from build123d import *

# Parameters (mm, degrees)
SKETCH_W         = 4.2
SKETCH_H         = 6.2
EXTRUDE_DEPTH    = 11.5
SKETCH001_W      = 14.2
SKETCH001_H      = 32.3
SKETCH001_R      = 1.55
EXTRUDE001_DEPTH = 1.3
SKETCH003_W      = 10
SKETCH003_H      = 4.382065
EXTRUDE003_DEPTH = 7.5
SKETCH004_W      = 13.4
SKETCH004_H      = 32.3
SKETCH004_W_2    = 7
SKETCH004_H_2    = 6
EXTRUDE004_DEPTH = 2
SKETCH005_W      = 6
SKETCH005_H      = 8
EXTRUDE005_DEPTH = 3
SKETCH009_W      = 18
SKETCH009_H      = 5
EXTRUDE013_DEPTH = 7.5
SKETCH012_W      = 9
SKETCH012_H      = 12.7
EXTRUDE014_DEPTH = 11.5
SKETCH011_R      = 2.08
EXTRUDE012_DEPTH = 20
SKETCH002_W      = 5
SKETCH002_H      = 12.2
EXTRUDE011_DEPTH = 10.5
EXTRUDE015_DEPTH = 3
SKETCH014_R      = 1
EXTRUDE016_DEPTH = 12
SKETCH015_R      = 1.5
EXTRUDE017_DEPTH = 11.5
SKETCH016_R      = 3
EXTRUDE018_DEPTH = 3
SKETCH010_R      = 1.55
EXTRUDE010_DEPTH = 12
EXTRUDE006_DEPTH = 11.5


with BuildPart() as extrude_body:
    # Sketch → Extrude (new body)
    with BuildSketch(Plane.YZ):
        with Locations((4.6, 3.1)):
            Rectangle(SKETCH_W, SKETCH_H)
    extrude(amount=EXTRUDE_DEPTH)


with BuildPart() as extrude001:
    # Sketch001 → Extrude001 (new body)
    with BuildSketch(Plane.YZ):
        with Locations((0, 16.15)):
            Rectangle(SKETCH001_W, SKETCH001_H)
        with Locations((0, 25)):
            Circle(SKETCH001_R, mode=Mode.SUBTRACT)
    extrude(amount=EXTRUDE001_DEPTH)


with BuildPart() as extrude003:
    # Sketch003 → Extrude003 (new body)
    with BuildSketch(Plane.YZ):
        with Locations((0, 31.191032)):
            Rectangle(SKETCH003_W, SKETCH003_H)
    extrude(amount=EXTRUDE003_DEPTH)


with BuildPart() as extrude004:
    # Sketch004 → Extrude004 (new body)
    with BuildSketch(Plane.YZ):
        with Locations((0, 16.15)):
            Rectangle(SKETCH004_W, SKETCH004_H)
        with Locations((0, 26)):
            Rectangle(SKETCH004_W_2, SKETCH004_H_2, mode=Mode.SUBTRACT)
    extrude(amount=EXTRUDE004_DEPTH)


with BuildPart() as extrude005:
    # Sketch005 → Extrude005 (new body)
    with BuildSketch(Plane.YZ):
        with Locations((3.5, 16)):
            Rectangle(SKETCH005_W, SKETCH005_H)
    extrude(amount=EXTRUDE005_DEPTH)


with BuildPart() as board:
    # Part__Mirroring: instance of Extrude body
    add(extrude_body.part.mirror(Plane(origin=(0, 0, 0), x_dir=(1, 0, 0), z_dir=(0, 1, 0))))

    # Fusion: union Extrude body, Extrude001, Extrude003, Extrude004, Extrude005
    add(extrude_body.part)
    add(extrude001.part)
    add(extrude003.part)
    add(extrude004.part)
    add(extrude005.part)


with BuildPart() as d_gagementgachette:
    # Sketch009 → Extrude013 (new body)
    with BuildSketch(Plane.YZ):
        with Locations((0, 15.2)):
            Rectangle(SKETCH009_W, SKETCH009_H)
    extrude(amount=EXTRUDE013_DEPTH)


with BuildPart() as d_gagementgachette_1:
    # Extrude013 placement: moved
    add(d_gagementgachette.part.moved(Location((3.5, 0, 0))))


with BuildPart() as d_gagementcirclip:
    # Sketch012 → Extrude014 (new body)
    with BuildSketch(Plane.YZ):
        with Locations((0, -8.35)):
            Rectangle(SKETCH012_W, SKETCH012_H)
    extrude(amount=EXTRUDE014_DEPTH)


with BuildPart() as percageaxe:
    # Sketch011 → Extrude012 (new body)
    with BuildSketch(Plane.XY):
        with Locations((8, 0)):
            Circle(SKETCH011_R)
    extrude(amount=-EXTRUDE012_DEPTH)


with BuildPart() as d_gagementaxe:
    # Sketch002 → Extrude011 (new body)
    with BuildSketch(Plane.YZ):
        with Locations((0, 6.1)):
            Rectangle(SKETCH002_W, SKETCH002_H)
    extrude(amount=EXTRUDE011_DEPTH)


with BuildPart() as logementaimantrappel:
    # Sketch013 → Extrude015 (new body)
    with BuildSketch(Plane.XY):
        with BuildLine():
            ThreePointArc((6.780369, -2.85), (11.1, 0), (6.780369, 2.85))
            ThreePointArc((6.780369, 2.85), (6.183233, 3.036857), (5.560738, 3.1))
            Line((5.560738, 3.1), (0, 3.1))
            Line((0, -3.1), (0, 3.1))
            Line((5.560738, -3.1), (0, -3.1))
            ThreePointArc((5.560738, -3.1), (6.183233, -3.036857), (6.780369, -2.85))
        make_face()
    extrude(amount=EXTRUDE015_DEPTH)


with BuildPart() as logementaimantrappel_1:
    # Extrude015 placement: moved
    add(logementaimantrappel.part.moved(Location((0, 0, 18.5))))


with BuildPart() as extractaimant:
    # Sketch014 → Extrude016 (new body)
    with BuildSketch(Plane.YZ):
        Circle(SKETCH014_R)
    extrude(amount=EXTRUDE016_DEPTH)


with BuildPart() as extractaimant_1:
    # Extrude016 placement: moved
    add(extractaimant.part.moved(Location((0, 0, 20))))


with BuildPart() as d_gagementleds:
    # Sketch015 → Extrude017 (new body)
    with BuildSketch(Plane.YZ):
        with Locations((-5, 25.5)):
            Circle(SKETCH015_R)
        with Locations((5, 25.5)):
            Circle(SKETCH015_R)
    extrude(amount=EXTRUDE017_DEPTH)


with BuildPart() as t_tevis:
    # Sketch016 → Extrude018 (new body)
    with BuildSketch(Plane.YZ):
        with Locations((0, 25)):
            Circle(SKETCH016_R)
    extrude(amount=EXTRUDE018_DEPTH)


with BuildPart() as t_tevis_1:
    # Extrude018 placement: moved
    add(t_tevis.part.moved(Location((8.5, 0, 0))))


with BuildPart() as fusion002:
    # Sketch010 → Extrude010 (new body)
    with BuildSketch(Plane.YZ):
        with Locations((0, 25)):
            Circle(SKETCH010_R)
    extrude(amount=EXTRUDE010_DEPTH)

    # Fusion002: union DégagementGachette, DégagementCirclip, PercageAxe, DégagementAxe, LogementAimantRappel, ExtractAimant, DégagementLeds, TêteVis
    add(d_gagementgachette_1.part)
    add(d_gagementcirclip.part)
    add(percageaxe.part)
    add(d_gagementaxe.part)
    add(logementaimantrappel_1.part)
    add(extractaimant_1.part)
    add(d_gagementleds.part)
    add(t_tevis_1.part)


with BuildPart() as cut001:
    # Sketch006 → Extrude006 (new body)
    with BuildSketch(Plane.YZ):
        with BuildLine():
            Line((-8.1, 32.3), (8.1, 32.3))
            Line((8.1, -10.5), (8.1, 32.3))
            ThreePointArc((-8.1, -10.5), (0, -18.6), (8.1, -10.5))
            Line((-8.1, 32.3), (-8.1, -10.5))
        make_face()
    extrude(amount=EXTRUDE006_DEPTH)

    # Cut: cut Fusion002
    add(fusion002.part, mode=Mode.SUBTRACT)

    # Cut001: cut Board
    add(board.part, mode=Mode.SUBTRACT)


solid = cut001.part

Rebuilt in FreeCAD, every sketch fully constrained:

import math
import FreeCAD as App
import Part
import Sketcher
from FreeCAD import Vector
Q = App.Units.Quantity


def add_polygon(sketch, points):
    """Adds a closed chain of lines whose ends are joined by coincident constraints."""
    first, n = sketch.GeometryCount, len(points)
    for a, b in zip(points, points[1:] + points[:1]):
        sketch.addGeometry(Part.LineSegment(App.Vector(*a, 0), App.Vector(*b, 0)), False)
    for i in range(n):
        sketch.addConstraint(Sketcher.Constraint("Coincident", first + i, 2, first + (i + 1) % n, 1))

doc = App.newDocument("Part")
body = doc.addObject("PartDesign::Body", "Body")

# Sketch on YZ plane
sketch1 = body.newObject("Sketcher::SketchObject", "Sketch")
sketch1.AttachmentSupport = (doc.getObject("YZ_Plane"), [""])
sketch1.MapMode = "FlatFace"
add_polygon(sketch1, [(2.5, 6.2), (2.5, 0), (6.7, 0), (6.7, 6.2)])  # lines 0-3
sketch1.addConstraint([
    Sketcher.Constraint("Vertical", 0),
    Sketcher.Constraint("Horizontal", 1),
    Sketcher.Constraint("Vertical", 2),
    Sketcher.Constraint("Horizontal", 3),
    Sketcher.Constraint("PointOnObject", 0, 2, -1),
    Sketcher.Constraint("DistanceX", 1, 1, 1, 2, Q("4.2 mm")),
    Sketcher.Constraint("DistanceY", 0, 2, 0, 1, Q("6.2 mm")),
    Sketcher.Constraint("DistanceX", -1, 1, 0, 2, Q("2.5 mm")),
])
pad1 = body.newObject("PartDesign::Pad", "Pad")
pad1.Profile = sketch1
pad1.Length = 11.5
body2 = doc.addObject("PartDesign::Body", "Body001")

# Sketch on YZ plane
sketch2 = body2.newObject("Sketcher::SketchObject", "Sketch001")
sketch2.AttachmentSupport = (doc.getObject("YZ_Plane001"), [""])
sketch2.MapMode = "FlatFace"
add_polygon(sketch2, [(-7.1, 32.3), (-7.1, 0), (7.1, 0), (7.1, 32.3)])  # lines 0-3
sketch2.addGeometry(Part.Circle(Vector(0, 25, 0), Vector(0, 0, 1), 1.6), False)  # 4
sketch2.addConstraint([
    Sketcher.Constraint("Vertical", 0),
    Sketcher.Constraint("Horizontal", 1),
    Sketcher.Constraint("Vertical", 2),
    Sketcher.Constraint("Horizontal", 3),
    Sketcher.Constraint("Symmetric", 0, 2, 1, 2, -1, 1),
    Sketcher.Constraint("PointOnObject", 4, 3, -2),
    Sketcher.Constraint("Diameter", 4, Q("3.1 mm")),
    Sketcher.Constraint("DistanceX", 1, 1, 1, 2, Q("14.2 mm")),
    Sketcher.Constraint("DistanceY", 0, 2, 0, 1, Q("32.3 mm")),
    Sketcher.Constraint("DistanceY", -1, 1, 4, 3, Q("25 mm")),
])
pad2 = body2.newObject("PartDesign::Pad", "Pad001")
pad2.Profile = sketch2
pad2.Length = 1.3
body3 = doc.addObject("PartDesign::Body", "Body002")

# Sketch on YZ plane
sketch3 = body3.newObject("Sketcher::SketchObject", "Sketch002")
sketch3.AttachmentSupport = (doc.getObject("YZ_Plane002"), [""])
sketch3.MapMode = "FlatFace"
add_polygon(sketch3, [(-5, 33.4), (-5, 29), (5, 29), (5, 33.4)])  # lines 0-3
sketch3.addConstraint([
    Sketcher.Constraint("Vertical", 0),
    Sketcher.Constraint("Horizontal", 1),
    Sketcher.Constraint("Vertical", 2),
    Sketcher.Constraint("Horizontal", 3),
    Sketcher.Constraint("DistanceX", 1, 1, 1, 2, Q("10 mm")),
    Sketcher.Constraint("DistanceX", 0, 2, -1, 1, Q("5 mm")),
    Sketcher.Constraint("DistanceY", -1, 1, 0, 2, Q("29 mm")),
    Sketcher.Constraint("DistanceY", 0, 2, 0, 1, Q("4.382065 mm")),
])
pad3 = body3.newObject("PartDesign::Pad", "Pad002")
pad3.Profile = sketch3
pad3.Length = 7.5
body4 = doc.addObject("PartDesign::Body", "Body003")

# Sketch on YZ plane
sketch4 = body4.newObject("Sketcher::SketchObject", "Sketch003")
sketch4.AttachmentSupport = (doc.getObject("YZ_Plane003"), [""])
sketch4.MapMode = "FlatFace"
add_polygon(sketch4, [(-7, 32), (-7, 0), (7, 0), (7, 32)])  # lines 0-3
add_polygon(sketch4, [(4, 23), (-4, 23), (-4, 29), (4, 29)])  # lines 4-7
sketch4.addConstraint([
    Sketcher.Constraint("Vertical", 0),
    Sketcher.Constraint("Horizontal", 1),
    Sketcher.Constraint("Vertical", 2),
    Sketcher.Constraint("Horizontal", 3),
    Sketcher.Constraint("Horizontal", 4),
    Sketcher.Constraint("Vertical", 5),
    Sketcher.Constraint("Horizontal", 6),
    Sketcher.Constraint("Vertical", 7),
    Sketcher.Constraint("Symmetric", 0, 2, 1, 2, -1, 1),
    Sketcher.Constraint("DistanceX", 4, 2, 4, 1, Q("7 mm")),
    Sketcher.Constraint("DistanceY", 5, 1, 5, 2, Q("6 mm")),
    Sketcher.Constraint("DistanceX", 1, 1, 1, 2, Q("13.4 mm")),
    Sketcher.Constraint("DistanceY", 0, 2, 0, 1, Q("32.3 mm")),
    Sketcher.Constraint("DistanceY", -1, 1, 4, 2, Q("23 mm")),
    Sketcher.Constraint("DistanceX", 4, 2, -1, 1, Q("3.5 mm")),
])
pad4 = body4.newObject("PartDesign::Pad", "Pad003")
pad4.Profile = sketch4
pad4.Length = 2
body5 = doc.addObject("PartDesign::Body", "Body004")

# Sketch on YZ plane
sketch5 = body5.newObject("Sketcher::SketchObject", "Sketch004")
sketch5.AttachmentSupport = (doc.getObject("YZ_Plane004"), [""])
sketch5.MapMode = "FlatFace"
add_polygon(sketch5, [(0, 20), (0, 12), (6, 12), (6, 20)])  # lines 0-3
sketch5.addConstraint([
    Sketcher.Constraint("Vertical", 0),
    Sketcher.Constraint("Horizontal", 1),
    Sketcher.Constraint("Vertical", 2),
    Sketcher.Constraint("Horizontal", 3),
    Sketcher.Constraint("DistanceX", 1, 1, 1, 2, Q("6 mm")),
    Sketcher.Constraint("DistanceY", 0, 2, 0, 1, Q("8 mm")),
    Sketcher.Constraint("DistanceY", -1, 1, 0, 2, Q("12 mm")),
    Sketcher.Constraint("DistanceX", -1, 1, 0, 2, Q("0.5 mm")),
])
pad5 = body5.newObject("PartDesign::Pad", "Pad004")
pad5.Profile = sketch5
pad5.Length = 3
body6 = doc.addObject("PartDesign::Body", "Body005")
body6.AllowCompound = True
doc.recompute()

mirroring = doc.addObject("Part::Mirroring", "Mirroring")
mirroring.Source = body
mirroring.Base = Vector(0, 0, 0)
mirroring.Normal = Vector(0, 1, 0)
body6.BaseFeature = mirroring
doc.recompute()

boolean = body6.newObject("PartDesign::Boolean", "Boolean")
boolean.Type = "Fuse"
boolean.addObjects([body])
doc.recompute()

boolean2 = body6.newObject("PartDesign::Boolean", "Boolean001")
boolean2.Type = "Fuse"
boolean2.addObjects([body2])
doc.recompute()

boolean3 = body6.newObject("PartDesign::Boolean", "Boolean002")
boolean3.Type = "Fuse"
boolean3.addObjects([body3])
doc.recompute()

boolean4 = body6.newObject("PartDesign::Boolean", "Boolean003")
boolean4.Type = "Fuse"
boolean4.addObjects([body4])
doc.recompute()

boolean5 = body6.newObject("PartDesign::Boolean", "Boolean004")
boolean5.Type = "Fuse"
boolean5.addObjects([body5])
body7 = doc.addObject("PartDesign::Body", "Body006")

# Sketch on YZ plane
sketch6 = body7.newObject("Sketcher::SketchObject", "Sketch005")
sketch6.AttachmentSupport = (doc.getObject("YZ_Plane006"), [""])
sketch6.MapMode = "FlatFace"
add_polygon(sketch6, [(-9, 18), (-9, 13), (9, 13), (9, 18)])  # lines 0-3
sketch6.addConstraint([
    Sketcher.Constraint("Vertical", 0),
    Sketcher.Constraint("Horizontal", 1),
    Sketcher.Constraint("Vertical", 2),
    Sketcher.Constraint("Horizontal", 3),
    Sketcher.Constraint("DistanceX", 1, 1, 1, 2, Q("18 mm")),
    Sketcher.Constraint("DistanceY", 0, 2, 0, 1, Q("5 mm")),
    Sketcher.Constraint("DistanceX", 0, 2, -1, 1, Q("9 mm")),
    Sketcher.Constraint("DistanceY", -1, 1, 0, 2, Q("12.7 mm")),
])
pad6 = body7.newObject("PartDesign::Pad", "Pad005")
pad6.Profile = sketch6
pad6.Length = 7.5
body8 = doc.addObject("PartDesign::Body", "Body007")
doc.recompute()

body7.Placement = App.Placement(Vector(3.5, 0, 0), App.Rotation(Vector(0, 0, 1), 0))
boolean6 = body8.newObject("PartDesign::Boolean", "Boolean005")
boolean6.Type = "Fuse"
boolean6.addObjects([body7])
body9 = doc.addObject("PartDesign::Body", "Body008")

# Sketch on YZ plane
sketch7 = body9.newObject("Sketcher::SketchObject", "Sketch006")
sketch7.AttachmentSupport = (doc.getObject("YZ_Plane008"), [""])
sketch7.MapMode = "FlatFace"
add_polygon(sketch7, [(-4, -2), (-4, -15), (4, -15), (4, -2)])  # lines 0-3
sketch7.addConstraint([
    Sketcher.Constraint("Vertical", 0),
    Sketcher.Constraint("Horizontal", 1),
    Sketcher.Constraint("Vertical", 2),
    Sketcher.Constraint("Horizontal", 3),
    Sketcher.Constraint("DistanceX", 1, 1, 1, 2, Q("9 mm")),
    Sketcher.Constraint("DistanceY", 0, 2, 0, 1, Q("12.7 mm")),
    Sketcher.Constraint("DistanceY", 2, 2, -1, 1, Q("2 mm")),
    Sketcher.Constraint("DistanceX", 0, 2, -1, 1, Q("4.5 mm")),
])
pad7 = body9.newObject("PartDesign::Pad", "Pad006")
pad7.Profile = sketch7
pad7.Length = 11.5
body10 = doc.addObject("PartDesign::Body", "Body009")

# Sketch on XY plane
sketch8 = body10.newObject("Sketcher::SketchObject", "Sketch007")
sketch8.AttachmentSupport = (doc.getObject("XY_Plane009"), [""])
sketch8.MapMode = "FlatFace"
sketch8.addGeometry(Part.Circle(Vector(8, 0, 0), Vector(0, 0, 1), 2.1), False)
sketch8.addConstraint([
    Sketcher.Constraint("PointOnObject", 0, 3, -1),
    Sketcher.Constraint("Diameter", 0, Q("4.16 mm")),
    Sketcher.Constraint("DistanceX", -1, 1, 0, 3, Q("8 mm")),
])
pad8 = body10.newObject("PartDesign::Pad", "Pad007")
pad8.Profile = sketch8
pad8.Length = 20
pad8.Reversed = True
body11 = doc.addObject("PartDesign::Body", "Body010")

# Sketch on YZ plane
sketch9 = body11.newObject("Sketcher::SketchObject", "Sketch008")
sketch9.AttachmentSupport = (doc.getObject("YZ_Plane010"), [""])
sketch9.MapMode = "FlatFace"
add_polygon(sketch9, [(-2, 12), (-2, 0), (2, 0), (2, 12)])  # lines 0-3
sketch9.addConstraint([
    Sketcher.Constraint("Vertical", 0),
    Sketcher.Constraint("Horizontal", 1),
    Sketcher.Constraint("Vertical", 2),
    Sketcher.Constraint("Horizontal", 3),
    Sketcher.Constraint("Symmetric", 0, 2, 1, 2, -1, 1),
    Sketcher.Constraint("DistanceX", 1, 1, 1, 2, Q("5 mm")),
    Sketcher.Constraint("DistanceY", 0, 2, 0, 1, Q("12.2 mm")),
])
pad9 = body11.newObject("PartDesign::Pad", "Pad008")
pad9.Profile = sketch9
pad9.Length = 10.5
body12 = doc.addObject("PartDesign::Body", "Body011")

# Sketch on XY plane
sketch10 = body12.newObject("Sketcher::SketchObject", "Sketch009")
sketch10.AttachmentSupport = (doc.getObject("XY_Plane011"), [""])
sketch10.MapMode = "FlatFace"
sketch10.addGeometry([
    Part.ArcOfCircle(Part.Circle(Vector(8, 0, 0), Vector(0, 0, 1), 3.1), math.radians(-113), math.radians(113)),  # 0
    Part.ArcOfCircle(Part.Circle(Vector(5.6, 0, 0), Vector(0, 0, 1), 3.1), math.radians(67), math.radians(90)),  # 1
    Part.LineSegment(Vector(5.6, 3.1, 0), Vector(0, 3.1, 0)),  # 2
    Part.LineSegment(Vector(0, 3.1, 0), Vector(0, -3.1, 0)),  # 3
    Part.LineSegment(Vector(0, -3.1, 0), Vector(5.6, -3.1, 0)),  # 4
    Part.ArcOfCircle(Part.Circle(Vector(5.6, 0, 0), Vector(0, 0, 1), 3.1), math.radians(-90), math.radians(-67)),  # 5
], False)
sketch10.addConstraint([
    Sketcher.Constraint("Coincident", 0, 2, 1, 1),
    Sketcher.Constraint("Tangent", 1, 2, 2, 1),
    Sketcher.Constraint("Coincident", 2, 2, 3, 1),
    Sketcher.Constraint("Coincident", 3, 2, 4, 1),
    Sketcher.Constraint("Tangent", 4, 2, 5, 1),
    Sketcher.Constraint("Coincident", 5, 2, 0, 1),
    Sketcher.Constraint("Horizontal", 2),
    Sketcher.Constraint("Vertical", 3),
    Sketcher.Constraint("Horizontal", 4),
    Sketcher.Constraint("Coincident", 5, 3, 1, 3),
    Sketcher.Constraint("Equal", 1, 5),
    Sketcher.Constraint("Symmetric", 2, 2, 3, 2, -1, 1),
    Sketcher.Constraint("PointOnObject", 0, 3, -1),
    Sketcher.Constraint("Radius", 0, Q("3.1 mm")),
    Sketcher.Constraint("DistanceY", 3, 2, 3, 1, Q("6.2 mm")),
    Sketcher.Constraint("DistanceX", -1, 1, 0, 3, Q("8 mm")),
    Sketcher.Constraint("DistanceY", 5, 2, 0, 2, Q("5.7 mm")),
])
pad10 = body12.newObject("PartDesign::Pad", "Pad009")
pad10.Profile = sketch10
pad10.Length = 3
body13 = doc.addObject("PartDesign::Body", "Body012")
doc.recompute()

body12.Placement = App.Placement(Vector(0, 0, 18.5), App.Rotation(Vector(0, 0, 1), 0))
boolean7 = body13.newObject("PartDesign::Boolean", "Boolean006")
boolean7.Type = "Fuse"
boolean7.addObjects([body12])
body14 = doc.addObject("PartDesign::Body", "Body013")

# Sketch on YZ plane
sketch11 = body14.newObject("Sketcher::SketchObject", "Sketch010")
sketch11.AttachmentSupport = (doc.getObject("YZ_Plane013"), [""])
sketch11.MapMode = "FlatFace"
sketch11.addGeometry(Part.Circle(Vector(0, 0, 0), Vector(0, 0, 1), 1), False)
sketch11.addConstraint([
    Sketcher.Constraint("Coincident", 0, 3, -1, 1),
    Sketcher.Constraint("Diameter", 0, Q("2 mm")),
])
pad11 = body14.newObject("PartDesign::Pad", "Pad010")
pad11.Profile = sketch11
pad11.Length = 12
body15 = doc.addObject("PartDesign::Body", "Body014")
doc.recompute()

body14.Placement = App.Placement(Vector(0, 0, 20), App.Rotation(Vector(0, 0, 1), 0))
boolean8 = body15.newObject("PartDesign::Boolean", "Boolean007")
boolean8.Type = "Fuse"
boolean8.addObjects([body14])
body16 = doc.addObject("PartDesign::Body", "Body015")
body16.AllowCompound = True

# Sketch on YZ plane
sketch12 = body16.newObject("Sketcher::SketchObject", "Sketch011")
sketch12.AttachmentSupport = (doc.getObject("YZ_Plane015"), [""])
sketch12.MapMode = "FlatFace"
sketch12.addGeometry([
    Part.Circle(Vector(-5, 25.5, 0), Vector(0, 0, 1), 1.5),
    Part.Circle(Vector(5, 25.5, 0), Vector(0, 0, 1), 1.5),
], False)
sketch12.addConstraint([
    Sketcher.Constraint("Equal", 0, 1),
    Sketcher.Constraint("Symmetric", 0, 3, 1, 3, -2),
    Sketcher.Constraint("Diameter", 0, Q("3 mm")),
    Sketcher.Constraint("DistanceX", 0, 3, -1, 1, Q("5 mm")),
    Sketcher.Constraint("DistanceY", -1, 1, 0, 3, Q("25.5 mm")),
])
pad12 = body16.newObject("PartDesign::Pad", "Pad011")
pad12.Profile = sketch12
pad12.Length = 11.5
body17 = doc.addObject("PartDesign::Body", "Body016")

# Sketch on YZ plane
sketch13 = body17.newObject("Sketcher::SketchObject", "Sketch012")
sketch13.AttachmentSupport = (doc.getObject("YZ_Plane016"), [""])
sketch13.MapMode = "FlatFace"
sketch13.addGeometry(Part.Circle(Vector(0, 25, 0), Vector(0, 0, 1), 3), False)
sketch13.addConstraint([
    Sketcher.Constraint("PointOnObject", 0, 3, -2),
    Sketcher.Constraint("Diameter", 0, Q("6 mm")),
    Sketcher.Constraint("DistanceY", -1, 1, 0, 3, Q("25 mm")),
])
pad13 = body17.newObject("PartDesign::Pad", "Pad012")
pad13.Profile = sketch13
pad13.Length = 3
body18 = doc.addObject("PartDesign::Body", "Body017")
doc.recompute()

body17.Placement = App.Placement(Vector(8.5, 0, 0), App.Rotation(Vector(0, 0, 1), 0))
boolean9 = body18.newObject("PartDesign::Boolean", "Boolean008")
boolean9.Type = "Fuse"
boolean9.addObjects([body17])
body19 = doc.addObject("PartDesign::Body", "Body018")
body19.AllowCompound = True

# Sketch on YZ plane
sketch14 = body19.newObject("Sketcher::SketchObject", "Sketch013")
sketch14.AttachmentSupport = (doc.getObject("YZ_Plane018"), [""])
sketch14.MapMode = "FlatFace"
sketch14.addGeometry(Part.Circle(Vector(0, 25, 0), Vector(0, 0, 1), 1.6), False)
sketch14.addConstraint([
    Sketcher.Constraint("PointOnObject", 0, 3, -2),
    Sketcher.Constraint("Diameter", 0, Q("3.1 mm")),
    Sketcher.Constraint("DistanceY", -1, 1, 0, 3, Q("25 mm")),
])
pad14 = body19.newObject("PartDesign::Pad", "Pad013")
pad14.Profile = sketch14
pad14.Length = 12
doc.recompute()

boolean10 = body19.newObject("PartDesign::Boolean", "Boolean009")
boolean10.Type = "Fuse"
boolean10.addObjects([body8])
doc.recompute()

boolean11 = body19.newObject("PartDesign::Boolean", "Boolean010")
boolean11.Type = "Fuse"
boolean11.addObjects([body9])
doc.recompute()

boolean12 = body19.newObject("PartDesign::Boolean", "Boolean011")
boolean12.Type = "Fuse"
boolean12.addObjects([body10])
doc.recompute()

boolean13 = body19.newObject("PartDesign::Boolean", "Boolean012")
boolean13.Type = "Fuse"
boolean13.addObjects([body11])
doc.recompute()

boolean14 = body19.newObject("PartDesign::Boolean", "Boolean013")
boolean14.Type = "Fuse"
boolean14.addObjects([body13])
doc.recompute()

boolean15 = body19.newObject("PartDesign::Boolean", "Boolean014")
boolean15.Type = "Fuse"
boolean15.addObjects([body15])
doc.recompute()

boolean16 = body19.newObject("PartDesign::Boolean", "Boolean015")
boolean16.Type = "Fuse"
boolean16.addObjects([body16])
doc.recompute()

boolean17 = body19.newObject("PartDesign::Boolean", "Boolean016")
boolean17.Type = "Fuse"
boolean17.addObjects([body18])
body20 = doc.addObject("PartDesign::Body", "Body019")

# Sketch on YZ plane
sketch15 = body20.newObject("Sketcher::SketchObject", "Sketch014")
sketch15.AttachmentSupport = (doc.getObject("YZ_Plane019"), [""])
sketch15.MapMode = "FlatFace"
sketch15.addGeometry([
    Part.LineSegment(Vector(8, 32, 0), Vector(-8, 32, 0)),
    Part.LineSegment(Vector(-8, 32, 0), Vector(-8, -10, 0)),
    Part.ArcOfCircle(Part.Circle(Vector(0, -10, 0), Vector(0, 0, 1), 8), math.radians(180), math.radians(360)),
    Part.LineSegment(Vector(8, -10, 0), Vector(8, 32, 0)),
], False)
sketch15.addConstraint([
    Sketcher.Constraint("Coincident", 0, 2, 1, 1),
    Sketcher.Constraint("Tangent", 1, 2, 2, 1),
    Sketcher.Constraint("Tangent", 2, 2, 3, 1),
    Sketcher.Constraint("Coincident", 3, 2, 0, 1),
    Sketcher.Constraint("Horizontal", 0),
    Sketcher.Constraint("Vertical", 1),
    Sketcher.Constraint("Vertical", 3),
    Sketcher.Constraint("PointOnObject", 2, 3, -2),
    Sketcher.Constraint("Radius", 2, Q("8.1 mm")),
    Sketcher.Constraint("DistanceY", 1, 2, 1, 1, Q("42.8 mm")),
    Sketcher.Constraint("DistanceY", 2, 3, -1, 1, Q("10.5 mm")),
])
pad15 = body20.newObject("PartDesign::Pad", "Pad014")
pad15.Profile = sketch15
pad15.Length = 11.5
doc.recompute()

boolean18 = body20.newObject("PartDesign::Boolean", "Boolean017")
boolean18.Type = "Cut"
boolean18.addObjects([body19])
doc.recompute()

boolean19 = body20.newObject("PartDesign::Boolean", "Boolean018")
boolean19.Type = "Cut"
boolean19.addObjects([body6])
mirroring.Visibility = False

doc.recompute()
